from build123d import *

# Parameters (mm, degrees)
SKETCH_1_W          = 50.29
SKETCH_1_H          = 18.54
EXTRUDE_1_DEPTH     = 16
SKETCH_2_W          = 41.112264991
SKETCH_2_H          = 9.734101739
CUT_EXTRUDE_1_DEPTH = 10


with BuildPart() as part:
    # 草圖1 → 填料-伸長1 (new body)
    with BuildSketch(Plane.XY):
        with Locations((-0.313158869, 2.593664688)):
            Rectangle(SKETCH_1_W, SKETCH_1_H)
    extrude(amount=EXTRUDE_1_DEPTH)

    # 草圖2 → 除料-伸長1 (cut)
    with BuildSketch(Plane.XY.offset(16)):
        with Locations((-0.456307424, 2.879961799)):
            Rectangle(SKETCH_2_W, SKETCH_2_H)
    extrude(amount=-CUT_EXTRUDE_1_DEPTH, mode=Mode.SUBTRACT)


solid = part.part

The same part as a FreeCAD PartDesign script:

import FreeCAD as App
import Part
import Sketcher
from FreeCAD import Vector

doc = App.newDocument("Part")
body = doc.addObject("PartDesign::Body", "Body")

sketch1 = body.newObject("Sketcher::SketchObject", "Sketch")
sketch1.AttachmentSupport = (doc.getObject("XY_Plane"), [""])
sketch1.MapMode = "FlatFace"
sketch1.addGeometry(Part.LineSegment(Vector(-25, 12, 0), Vector(-25, -7, 0)), False)
sketch1.addGeometry(Part.LineSegment(Vector(-25, -7, 0), Vector(25, -7, 0)), False)
sketch1.addGeometry(Part.LineSegment(Vector(25, -7, 0), Vector(25, 12, 0)), False)
sketch1.addGeometry(Part.LineSegment(Vector(25, 12, 0), Vector(-25, 12, 0)), False)
sketch1.addConstraint(Sketcher.Constraint("Coincident", 0, 2, 1, 1))
sketch1.addConstraint(Sketcher.Constraint("Coincident", 1, 2, 2, 1))
sketch1.addConstraint(Sketcher.Constraint("Coincident", 2, 2, 3, 1))
sketch1.addConstraint(Sketcher.Constraint("Coincident", 3, 2, 0, 1))
sketch1.addConstraint(Sketcher.Constraint("Vertical", 0))
sketch1.addConstraint(Sketcher.Constraint("Horizontal", 1))
sketch1.addConstraint(Sketcher.Constraint("Vertical", 2))
sketch1.addConstraint(Sketcher.Constraint("Horizontal", 3))
sketch1.addConstraint(Sketcher.Constraint("DistanceX", 1, 1, 1, 2, 50.29))
sketch1.addConstraint(Sketcher.Constraint("DistanceY", 0, 2, 0, 1, 18.54))
sketch1.addConstraint(Sketcher.Constraint("DistanceX", 0, 2, -1, 1, 25.458159))
sketch1.addConstraint(Sketcher.Constraint("DistanceY", 0, 2, -1, 1, 6.676335))
pad1 = body.newObject("PartDesign::Pad", "Pad")
pad1.Profile = sketch1
pad1.Length = 16

sketch2 = body.newObject("Sketcher::SketchObject", "Sketch001")
sketch2.AttachmentSupport = (doc.getObject("XY_Plane"), [""])
sketch2.MapMode = "FlatFace"
sketch2.AttachmentOffset = App.Placement(Vector(0, 0, 16), App.Rotation())
sketch2.addGeometry(Part.LineSegment(Vector(-21, 8, 0), Vector(-21, -2, 0)), False)
sketch2.addGeometry(Part.LineSegment(Vector(-21, -2, 0), Vector(20, -2, 0)), False)
sketch2.addGeometry(Part.LineSegment(Vector(20, -2, 0), Vector(20, 8, 0)), False)
sketch2.addGeometry(Part.LineSegment(Vector(20, 8, 0), Vector(-21, 8, 0)), False)
sketch2.addConstraint(Sketcher.Constraint("Coincident", 0, 2, 1, 1))
sketch2.addConstraint(Sketcher.Constraint("Coincident", 1, 2, 2, 1))
sketch2.addConstraint(Sketcher.Constraint("Coincident", 2, 2, 3, 1))
sketch2.addConstraint(Sketcher.Constraint("Coincident", 3, 2, 0, 1))
sketch2.addConstraint(Sketcher.Constraint("Vertical", 0))
sketch2.addConstraint(Sketcher.Constraint("Horizontal", 1))
sketch2.addConstraint(Sketcher.Constraint("Vertical", 2))
sketch2.addConstraint(Sketcher.Constraint("Horizontal", 3))
sketch2.addConstraint(Sketcher.Constraint("DistanceY", 0, 2, 0, 1, 9.734102))
sketch2.addConstraint(Sketcher.Constraint("DistanceX", 1, 1, 1, 2, 41.112265))
sketch2.addConstraint(Sketcher.Constraint("DistanceX", 0, 2, -1, 1, 21.01244))
sketch2.addConstraint(Sketcher.Constraint("DistanceY", 0, 2, -1, 1, 1.987089))
pocket1 = body.newObject("PartDesign::Pocket", "Pocket")
pocket1.Profile = sketch2
pocket1.Length = 10

doc.recompute()
